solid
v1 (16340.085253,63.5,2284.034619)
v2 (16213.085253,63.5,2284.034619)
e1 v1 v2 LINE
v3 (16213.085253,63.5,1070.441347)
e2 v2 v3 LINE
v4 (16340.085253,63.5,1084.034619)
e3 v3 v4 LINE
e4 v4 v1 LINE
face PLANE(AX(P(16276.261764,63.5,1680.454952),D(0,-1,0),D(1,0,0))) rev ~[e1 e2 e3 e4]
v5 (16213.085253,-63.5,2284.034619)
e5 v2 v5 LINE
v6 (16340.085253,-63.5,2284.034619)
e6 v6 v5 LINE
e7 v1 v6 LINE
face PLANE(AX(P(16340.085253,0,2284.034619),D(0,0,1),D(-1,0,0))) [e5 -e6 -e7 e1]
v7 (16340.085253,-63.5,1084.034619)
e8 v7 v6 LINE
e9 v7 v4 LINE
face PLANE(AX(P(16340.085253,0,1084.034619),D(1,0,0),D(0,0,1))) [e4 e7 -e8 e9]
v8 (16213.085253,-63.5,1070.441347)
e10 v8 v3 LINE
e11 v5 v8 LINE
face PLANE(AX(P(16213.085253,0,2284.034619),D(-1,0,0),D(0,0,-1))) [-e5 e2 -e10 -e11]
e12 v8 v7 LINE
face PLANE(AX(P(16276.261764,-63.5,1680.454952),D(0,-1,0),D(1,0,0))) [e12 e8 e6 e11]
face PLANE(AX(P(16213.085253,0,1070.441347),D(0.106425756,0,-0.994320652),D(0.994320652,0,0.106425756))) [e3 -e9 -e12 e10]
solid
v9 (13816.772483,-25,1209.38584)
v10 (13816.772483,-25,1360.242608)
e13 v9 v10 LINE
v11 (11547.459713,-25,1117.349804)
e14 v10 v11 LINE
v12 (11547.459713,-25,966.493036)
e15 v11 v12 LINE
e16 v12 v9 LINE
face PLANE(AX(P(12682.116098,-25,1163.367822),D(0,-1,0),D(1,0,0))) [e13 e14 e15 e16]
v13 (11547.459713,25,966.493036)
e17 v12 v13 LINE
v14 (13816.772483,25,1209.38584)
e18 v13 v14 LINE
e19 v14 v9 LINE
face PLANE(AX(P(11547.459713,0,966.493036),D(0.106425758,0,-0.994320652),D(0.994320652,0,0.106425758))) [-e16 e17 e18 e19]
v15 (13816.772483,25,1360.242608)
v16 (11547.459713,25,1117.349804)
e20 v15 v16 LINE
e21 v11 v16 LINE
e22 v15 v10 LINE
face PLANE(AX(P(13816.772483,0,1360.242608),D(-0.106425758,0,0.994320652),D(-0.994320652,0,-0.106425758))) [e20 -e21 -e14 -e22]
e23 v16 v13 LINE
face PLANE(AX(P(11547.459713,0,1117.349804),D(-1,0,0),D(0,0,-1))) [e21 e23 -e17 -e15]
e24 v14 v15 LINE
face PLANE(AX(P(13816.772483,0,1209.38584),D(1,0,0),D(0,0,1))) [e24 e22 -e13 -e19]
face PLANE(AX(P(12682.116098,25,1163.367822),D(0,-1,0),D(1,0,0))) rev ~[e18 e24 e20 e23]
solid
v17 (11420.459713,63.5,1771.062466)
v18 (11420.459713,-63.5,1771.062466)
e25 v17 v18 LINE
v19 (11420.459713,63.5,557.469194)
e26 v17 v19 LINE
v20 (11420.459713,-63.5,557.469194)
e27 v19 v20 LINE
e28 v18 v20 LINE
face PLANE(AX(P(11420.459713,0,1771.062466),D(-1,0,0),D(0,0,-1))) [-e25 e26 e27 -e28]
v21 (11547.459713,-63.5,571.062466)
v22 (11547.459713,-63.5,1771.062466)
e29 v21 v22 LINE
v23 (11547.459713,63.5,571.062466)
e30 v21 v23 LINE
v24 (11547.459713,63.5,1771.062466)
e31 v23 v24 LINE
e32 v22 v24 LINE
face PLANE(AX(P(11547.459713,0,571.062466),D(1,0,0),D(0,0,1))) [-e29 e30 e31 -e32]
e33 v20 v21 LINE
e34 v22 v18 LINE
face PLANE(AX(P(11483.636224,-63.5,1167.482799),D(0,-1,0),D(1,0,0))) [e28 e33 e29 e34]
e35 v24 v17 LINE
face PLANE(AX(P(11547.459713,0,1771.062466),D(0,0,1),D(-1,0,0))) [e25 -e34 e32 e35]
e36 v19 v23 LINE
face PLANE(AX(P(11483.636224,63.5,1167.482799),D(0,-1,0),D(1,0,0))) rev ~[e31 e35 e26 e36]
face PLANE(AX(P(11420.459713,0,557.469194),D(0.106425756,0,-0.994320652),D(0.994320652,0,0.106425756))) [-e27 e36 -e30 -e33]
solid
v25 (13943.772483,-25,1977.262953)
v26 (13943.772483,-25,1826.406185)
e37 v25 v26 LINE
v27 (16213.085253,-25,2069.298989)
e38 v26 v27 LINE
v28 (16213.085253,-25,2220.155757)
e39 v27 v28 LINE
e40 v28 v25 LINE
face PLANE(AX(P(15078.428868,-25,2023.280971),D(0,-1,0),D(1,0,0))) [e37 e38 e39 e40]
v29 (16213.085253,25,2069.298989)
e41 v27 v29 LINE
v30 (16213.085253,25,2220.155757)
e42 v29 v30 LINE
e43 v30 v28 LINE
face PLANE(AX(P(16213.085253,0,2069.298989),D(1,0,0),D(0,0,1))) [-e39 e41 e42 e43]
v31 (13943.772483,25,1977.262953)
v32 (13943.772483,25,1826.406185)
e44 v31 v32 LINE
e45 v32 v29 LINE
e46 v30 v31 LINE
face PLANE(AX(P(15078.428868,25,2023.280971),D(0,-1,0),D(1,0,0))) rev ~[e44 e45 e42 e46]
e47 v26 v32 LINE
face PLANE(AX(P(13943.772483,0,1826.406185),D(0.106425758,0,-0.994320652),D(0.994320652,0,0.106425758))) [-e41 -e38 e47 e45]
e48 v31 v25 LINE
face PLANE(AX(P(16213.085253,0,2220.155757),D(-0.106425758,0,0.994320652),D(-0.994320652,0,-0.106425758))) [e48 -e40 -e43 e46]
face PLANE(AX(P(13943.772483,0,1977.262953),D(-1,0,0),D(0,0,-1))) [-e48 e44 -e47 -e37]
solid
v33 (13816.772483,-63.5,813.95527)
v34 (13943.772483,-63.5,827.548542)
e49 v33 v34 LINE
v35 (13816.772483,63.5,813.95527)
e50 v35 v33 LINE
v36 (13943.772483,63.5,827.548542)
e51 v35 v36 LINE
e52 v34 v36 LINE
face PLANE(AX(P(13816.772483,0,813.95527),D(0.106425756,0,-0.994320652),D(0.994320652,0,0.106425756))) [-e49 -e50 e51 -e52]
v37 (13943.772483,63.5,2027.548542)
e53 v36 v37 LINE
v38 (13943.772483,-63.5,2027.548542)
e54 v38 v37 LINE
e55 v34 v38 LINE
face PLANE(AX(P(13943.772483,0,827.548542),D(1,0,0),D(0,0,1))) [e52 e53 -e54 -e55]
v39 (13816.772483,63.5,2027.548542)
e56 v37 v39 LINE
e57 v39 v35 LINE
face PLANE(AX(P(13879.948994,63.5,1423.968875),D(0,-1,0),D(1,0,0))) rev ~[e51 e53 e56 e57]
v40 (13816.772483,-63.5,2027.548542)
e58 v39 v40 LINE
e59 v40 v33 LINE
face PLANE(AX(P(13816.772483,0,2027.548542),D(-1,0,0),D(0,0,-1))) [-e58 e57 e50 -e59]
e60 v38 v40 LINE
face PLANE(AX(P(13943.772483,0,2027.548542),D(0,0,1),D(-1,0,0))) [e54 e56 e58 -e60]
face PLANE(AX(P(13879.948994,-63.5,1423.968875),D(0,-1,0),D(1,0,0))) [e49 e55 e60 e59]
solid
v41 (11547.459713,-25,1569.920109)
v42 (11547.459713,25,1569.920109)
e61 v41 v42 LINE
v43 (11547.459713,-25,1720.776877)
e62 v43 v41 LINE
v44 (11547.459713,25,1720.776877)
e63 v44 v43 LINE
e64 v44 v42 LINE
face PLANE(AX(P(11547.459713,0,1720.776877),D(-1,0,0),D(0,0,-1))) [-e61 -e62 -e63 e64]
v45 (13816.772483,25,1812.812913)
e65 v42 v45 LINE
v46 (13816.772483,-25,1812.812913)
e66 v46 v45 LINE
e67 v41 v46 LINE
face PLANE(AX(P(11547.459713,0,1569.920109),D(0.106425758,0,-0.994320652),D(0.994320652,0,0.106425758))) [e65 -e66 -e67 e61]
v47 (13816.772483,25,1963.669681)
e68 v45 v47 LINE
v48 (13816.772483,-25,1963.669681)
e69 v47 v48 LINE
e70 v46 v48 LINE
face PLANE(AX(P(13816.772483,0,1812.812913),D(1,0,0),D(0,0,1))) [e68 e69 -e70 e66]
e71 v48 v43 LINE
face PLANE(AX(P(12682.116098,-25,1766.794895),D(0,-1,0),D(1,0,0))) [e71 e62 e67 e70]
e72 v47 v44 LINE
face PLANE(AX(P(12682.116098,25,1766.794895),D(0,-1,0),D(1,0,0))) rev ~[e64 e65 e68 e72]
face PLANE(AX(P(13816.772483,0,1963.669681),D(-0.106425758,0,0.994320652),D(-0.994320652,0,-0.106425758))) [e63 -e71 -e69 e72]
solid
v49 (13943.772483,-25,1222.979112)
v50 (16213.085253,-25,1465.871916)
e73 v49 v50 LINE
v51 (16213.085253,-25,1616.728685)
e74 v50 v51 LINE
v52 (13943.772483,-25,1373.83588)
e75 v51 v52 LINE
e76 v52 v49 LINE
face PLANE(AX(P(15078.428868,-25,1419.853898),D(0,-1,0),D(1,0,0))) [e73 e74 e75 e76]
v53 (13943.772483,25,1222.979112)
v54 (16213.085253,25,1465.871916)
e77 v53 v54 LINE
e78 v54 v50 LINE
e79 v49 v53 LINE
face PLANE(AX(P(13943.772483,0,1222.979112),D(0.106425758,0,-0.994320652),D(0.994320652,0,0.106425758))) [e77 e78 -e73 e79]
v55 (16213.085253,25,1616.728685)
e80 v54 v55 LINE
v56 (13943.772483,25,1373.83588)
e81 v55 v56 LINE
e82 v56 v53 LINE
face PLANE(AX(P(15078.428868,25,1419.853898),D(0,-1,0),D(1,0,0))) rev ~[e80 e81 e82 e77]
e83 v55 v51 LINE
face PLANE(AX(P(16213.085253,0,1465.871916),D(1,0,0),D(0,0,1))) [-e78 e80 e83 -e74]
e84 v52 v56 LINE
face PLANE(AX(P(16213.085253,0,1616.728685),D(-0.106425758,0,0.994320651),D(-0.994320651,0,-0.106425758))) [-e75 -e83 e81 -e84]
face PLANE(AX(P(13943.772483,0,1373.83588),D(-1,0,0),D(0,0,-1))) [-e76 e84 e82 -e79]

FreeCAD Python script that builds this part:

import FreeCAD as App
import Part
import Sketcher
from FreeCAD import Vector


def add_polygon(sketch, points):
    """Adds a closed chain of lines whose ends are joined by coincident constraints."""
    first, n = sketch.GeometryCount, len(points)
    for a, b in zip(points, points[1:] + points[:1]):
        sketch.addGeometry(Part.LineSegment(App.Vector(*a, 0), App.Vector(*b, 0)), False)
    for i in range(n):
        sketch.addConstraint(Sketcher.Constraint("Coincident", first + i, 2, first + (i + 1) % n, 1))

doc = App.newDocument("Part")
params = doc.addObject("Spreadsheet::Sheet", "Params")
for row, (alias, value) in enumerate([
    ("sketch1_width", "127 mm"),
    ("sketch1_height", "1200 mm"),
    ("pad1_length", "63.5 mm"),
    ("pad1_length2", "63.5 mm"),
    ("pad2_length", "25 mm"),
    ("pad2_length2", "25 mm"),
], start=1):
    params.set(f"A{row}", alias)
    params.set(f"B{row}", "=" + value)
    params.setAlias(f"B{row}", alias)

body = doc.addObject("PartDesign::Body", "Body")
body.AllowCompound = True

# Sketch on XZ plane
sketch1 = body.newObject("Sketcher::SketchObject", "Sketch")
sketch1.AttachmentSupport = (doc.getObject("XZ_Plane"), [""])
sketch1.MapMode = "FlatFace"
add_polygon(sketch1, [(11547, 1771), (11420, 1771), (11420, 557), (11547, 571)])  # lines 0-3
add_polygon(sketch1, [(16340, 1084), (16340, 2284), (16213, 2284), (16213, 1070)])  # lines 4-7
add_polygon(sketch1, [(13944, 2028), (13817, 2028), (13817, 814), (13944, 828)])  # lines 8-11
sketch1.addConstraint([
    Sketcher.Constraint("Horizontal", 0),
    Sketcher.Constraint("Vertical", 1),
    Sketcher.Constraint("Vertical", 3),
    Sketcher.Constraint("Vertical", 4),
    Sketcher.Constraint("Horizontal", 5),
    Sketcher.Constraint("Vertical", 6),
    Sketcher.Constraint("Horizontal", 8),
    Sketcher.Constraint("Vertical", 9),
    Sketcher.Constraint("Vertical", 11),
    Sketcher.Constraint("Parallel", 2, 7),
    Sketcher.Constraint("Parallel", 7, 10),
    Sketcher.Constraint("Equal", 0, 5),
    Sketcher.Constraint("Equal", 5, 8),
    Sketcher.Constraint("Equal", 3, 4),
    Sketcher.Constraint("Equal", 6, 9),
    Sketcher.Constraint("DistanceX", 0, 2, 0, 1, 127.0),
    Sketcher.Constraint("DistanceY", 3, 1, 3, 2, 1200.0),
    Sketcher.Constraint("DistanceY", 1, 2, 1, 1, 1213.593272),
    Sketcher.Constraint("DistanceY", -1, 1, 4, 2, 2284.034619),
    Sketcher.Constraint("DistanceY", -1, 1, 8, 2, 2027.548542),
    Sketcher.Constraint("DistanceX", 3, 2, 4, 2, 4792.62554),
    Sketcher.Constraint("DistanceY", 2, 2, 6, 2, 499.378881),
    Sketcher.Constraint("DistanceX", 3, 2, 8, 2, 2269.31277),
    Sketcher.Constraint("DistanceX", -1, 1, 0, 2, 11420.459713),
])
sketch1.setExpression("Constraints[27]", "Params.sketch1_width")
sketch1.setExpression("Constraints[28]", "Params.sketch1_height")
pad1 = body.newObject("PartDesign::Pad", "Pad")
pad1.Profile = sketch1
pad1.Type = "TwoLengths"
pad1.setExpression("Length", "Params.pad1_length")
pad1.setExpression("Length2", "Params.pad1_length2")
body2 = doc.addObject("PartDesign::Body", "Body001")
body2.AllowCompound = True

# Sketch on XZ plane
sketch2 = body2.newObject("Sketcher::SketchObject", "Sketch001")
sketch2.AttachmentSupport = (doc.getObject("XZ_Plane001"), [""])
sketch2.MapMode = "FlatFace"
add_polygon(sketch2, [(13817, 1813), (13817, 1964), (11547, 1721), (11547, 1570)])  # lines 0-3
add_polygon(sketch2, [(11547, 966), (13817, 1209), (13817, 1360), (11547, 1117)])  # lines 4-7
add_polygon(sketch2, [(13944, 1223), (16213, 1466), (16213, 1617), (13944, 1374)])  # lines 8-11
add_polygon(sketch2, [(16213, 2069), (16213, 2220), (13944, 1977), (13944, 1826)])  # lines 12-15
sketch2.addConstraint([
    Sketcher.Constraint("Vertical", 0),
    Sketcher.Constraint("Vertical", 2),
    Sketcher.Constraint("Vertical", 5),
    Sketcher.Constraint("Vertical", 7),
    Sketcher.Constraint("Vertical", 9),
    Sketcher.Constraint("Vertical", 11),
    Sketcher.Constraint("Vertical", 12),
    Sketcher.Constraint("Vertical", 14),
    Sketcher.Constraint("Parallel", 1, 3),
    Sketcher.Constraint("Parallel", 3, 4),
    Sketcher.Constraint("Parallel", 4, 6),
    Sketcher.Constraint("Parallel", 6, 8),
    Sketcher.Constraint("Parallel", 8, 10),
    Sketcher.Constraint("Parallel", 10, 13),
    Sketcher.Constraint("Parallel", 13, 15),
    Sketcher.Constraint("Vertical", 3, 2, 4, 2),
    Sketcher.Constraint("Vertical", 2, 2, 6, 2),
    Sketcher.Constraint("Vertical", 9, 2, 12, 2),
    Sketcher.Constraint("Vertical", 11, 2, 13, 2),
    Sketcher.Constraint("Equal", 2, 5),
    Sketcher.Constraint("Equal", 7, 9),
    Sketcher.Constraint("Equal", 11, 12),
    Sketcher.Constraint("Equal", 6, 8),
    Sketcher.Constraint("DistanceX", 5, 2, 10, 2, 127.0),
    Sketcher.Constraint("DistanceY", 0, 1, 0, 2, 150.856768),
    Sketcher.Constraint("DistanceY", 5, 2, 2, 2, 209.677501),
    Sketcher.Constraint("DistanceY", 10, 2, 0, 2, 589.833801),
    Sketcher.Constraint("DistanceY", -1, 1, 0, 2, 1963.669681),
    Sketcher.Constraint("DistanceY", -1, 1, 2, 2, 1569.920109),
    Sketcher.Constraint("DistanceY", -1, 1, 15, 2, 2069.298989),
    Sketcher.Constraint("DistanceX", 1, 2, 0, 2, 2269.31277),
    Sketcher.Constraint("DistanceX", -1, 1, 0, 2, 13816.772483),
])
pad2 = body2.newObject("PartDesign::Pad", "Pad001")
pad2.Profile = sketch2
pad2.Type = "TwoLengths"
pad2.setExpression("Length", "Params.pad2_length")
pad2.setExpression("Length2", "Params.pad2_length2")

doc.recompute()
